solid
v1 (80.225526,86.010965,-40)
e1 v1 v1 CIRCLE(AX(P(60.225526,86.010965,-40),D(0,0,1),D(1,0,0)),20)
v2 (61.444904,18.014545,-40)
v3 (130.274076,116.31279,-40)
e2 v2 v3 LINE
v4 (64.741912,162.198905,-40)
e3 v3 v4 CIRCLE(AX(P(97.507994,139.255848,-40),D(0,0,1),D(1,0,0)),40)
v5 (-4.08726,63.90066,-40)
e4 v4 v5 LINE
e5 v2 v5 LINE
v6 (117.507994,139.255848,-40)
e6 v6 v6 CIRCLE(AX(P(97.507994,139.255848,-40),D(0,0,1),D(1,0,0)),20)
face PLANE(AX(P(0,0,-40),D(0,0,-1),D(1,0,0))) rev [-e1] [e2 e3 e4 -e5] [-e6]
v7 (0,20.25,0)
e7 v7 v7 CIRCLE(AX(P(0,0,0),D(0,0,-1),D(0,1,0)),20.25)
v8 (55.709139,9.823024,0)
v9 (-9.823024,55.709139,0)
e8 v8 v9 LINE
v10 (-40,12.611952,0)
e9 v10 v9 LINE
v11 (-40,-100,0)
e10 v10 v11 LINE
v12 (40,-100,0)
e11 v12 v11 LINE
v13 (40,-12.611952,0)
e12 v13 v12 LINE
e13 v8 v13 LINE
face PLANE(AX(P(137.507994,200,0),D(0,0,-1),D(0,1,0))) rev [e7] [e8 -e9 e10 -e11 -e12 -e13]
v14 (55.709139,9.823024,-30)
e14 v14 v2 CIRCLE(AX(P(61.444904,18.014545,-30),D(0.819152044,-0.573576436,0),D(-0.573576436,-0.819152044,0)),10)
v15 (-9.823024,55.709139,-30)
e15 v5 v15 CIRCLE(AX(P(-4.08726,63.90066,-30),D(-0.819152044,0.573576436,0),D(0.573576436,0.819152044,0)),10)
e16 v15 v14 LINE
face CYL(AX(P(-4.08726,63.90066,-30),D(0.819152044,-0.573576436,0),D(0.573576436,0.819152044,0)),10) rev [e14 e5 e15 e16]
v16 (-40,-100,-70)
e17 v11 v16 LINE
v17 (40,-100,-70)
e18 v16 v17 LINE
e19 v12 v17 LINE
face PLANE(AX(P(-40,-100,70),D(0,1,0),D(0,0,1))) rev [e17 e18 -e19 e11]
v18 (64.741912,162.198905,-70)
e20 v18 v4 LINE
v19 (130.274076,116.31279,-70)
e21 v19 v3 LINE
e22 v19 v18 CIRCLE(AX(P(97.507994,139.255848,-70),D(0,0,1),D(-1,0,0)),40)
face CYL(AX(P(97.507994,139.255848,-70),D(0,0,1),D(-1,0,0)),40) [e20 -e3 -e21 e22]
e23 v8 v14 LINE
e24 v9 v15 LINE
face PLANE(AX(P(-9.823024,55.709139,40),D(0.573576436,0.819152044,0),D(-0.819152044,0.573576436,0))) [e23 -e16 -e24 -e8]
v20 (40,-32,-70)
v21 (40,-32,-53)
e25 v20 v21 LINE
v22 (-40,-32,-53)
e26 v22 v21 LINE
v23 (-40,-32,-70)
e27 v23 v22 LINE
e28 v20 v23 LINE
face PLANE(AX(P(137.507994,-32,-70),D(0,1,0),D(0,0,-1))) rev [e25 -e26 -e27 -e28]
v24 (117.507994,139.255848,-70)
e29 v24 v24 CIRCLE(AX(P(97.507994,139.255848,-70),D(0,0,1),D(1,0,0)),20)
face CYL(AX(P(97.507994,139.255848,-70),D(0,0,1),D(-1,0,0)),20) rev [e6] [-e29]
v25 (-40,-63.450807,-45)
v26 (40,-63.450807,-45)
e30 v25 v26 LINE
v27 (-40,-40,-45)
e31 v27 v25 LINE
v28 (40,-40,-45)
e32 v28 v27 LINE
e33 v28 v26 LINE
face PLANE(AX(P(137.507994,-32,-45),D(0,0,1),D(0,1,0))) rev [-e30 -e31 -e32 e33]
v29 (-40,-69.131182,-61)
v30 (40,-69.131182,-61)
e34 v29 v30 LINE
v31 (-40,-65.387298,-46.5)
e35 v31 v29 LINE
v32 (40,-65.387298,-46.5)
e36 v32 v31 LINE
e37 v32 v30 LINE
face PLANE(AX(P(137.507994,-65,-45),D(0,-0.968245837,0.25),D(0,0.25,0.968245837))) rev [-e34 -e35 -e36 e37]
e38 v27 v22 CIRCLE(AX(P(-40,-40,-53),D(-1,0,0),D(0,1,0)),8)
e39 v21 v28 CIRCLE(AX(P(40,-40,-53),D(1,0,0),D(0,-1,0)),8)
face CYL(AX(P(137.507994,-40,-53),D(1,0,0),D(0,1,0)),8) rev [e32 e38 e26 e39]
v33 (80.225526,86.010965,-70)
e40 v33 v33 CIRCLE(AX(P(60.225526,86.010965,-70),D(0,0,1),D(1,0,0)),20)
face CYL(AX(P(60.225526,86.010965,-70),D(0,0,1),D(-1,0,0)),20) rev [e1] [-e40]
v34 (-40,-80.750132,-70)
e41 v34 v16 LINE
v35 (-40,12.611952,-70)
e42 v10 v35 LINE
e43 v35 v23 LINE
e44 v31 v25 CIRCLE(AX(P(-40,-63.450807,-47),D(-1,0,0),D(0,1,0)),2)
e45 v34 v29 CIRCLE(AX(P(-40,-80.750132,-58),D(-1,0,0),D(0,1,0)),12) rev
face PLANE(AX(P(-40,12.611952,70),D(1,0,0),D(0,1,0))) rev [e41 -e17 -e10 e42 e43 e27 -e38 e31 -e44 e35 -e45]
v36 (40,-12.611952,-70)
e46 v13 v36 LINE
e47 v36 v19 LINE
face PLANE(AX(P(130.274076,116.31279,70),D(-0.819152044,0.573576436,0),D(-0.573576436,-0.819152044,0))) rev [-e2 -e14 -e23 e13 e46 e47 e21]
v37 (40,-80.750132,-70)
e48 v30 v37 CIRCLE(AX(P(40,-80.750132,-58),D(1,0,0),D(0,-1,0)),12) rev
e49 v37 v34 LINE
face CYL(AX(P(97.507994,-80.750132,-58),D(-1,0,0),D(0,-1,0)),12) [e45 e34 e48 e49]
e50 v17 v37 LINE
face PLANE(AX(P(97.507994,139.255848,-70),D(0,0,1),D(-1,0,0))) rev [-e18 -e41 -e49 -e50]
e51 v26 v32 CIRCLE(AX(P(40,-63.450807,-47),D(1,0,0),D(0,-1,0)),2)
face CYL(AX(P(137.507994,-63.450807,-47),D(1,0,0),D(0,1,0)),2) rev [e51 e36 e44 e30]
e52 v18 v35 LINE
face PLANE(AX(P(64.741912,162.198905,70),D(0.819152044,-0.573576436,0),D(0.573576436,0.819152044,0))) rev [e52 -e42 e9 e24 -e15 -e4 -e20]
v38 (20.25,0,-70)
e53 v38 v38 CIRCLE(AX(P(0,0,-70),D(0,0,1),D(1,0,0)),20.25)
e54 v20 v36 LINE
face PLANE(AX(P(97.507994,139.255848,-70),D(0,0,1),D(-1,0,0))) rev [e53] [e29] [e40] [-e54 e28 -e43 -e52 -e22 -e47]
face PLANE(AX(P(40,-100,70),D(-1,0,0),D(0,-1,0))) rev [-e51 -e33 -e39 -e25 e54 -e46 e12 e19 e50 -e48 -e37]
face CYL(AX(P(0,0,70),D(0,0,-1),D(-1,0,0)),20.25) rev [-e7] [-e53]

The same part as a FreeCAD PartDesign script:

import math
import FreeCAD as App
import Part
import Sketcher
Q = App.Units.Quantity


def edges_at(feature, points):
    """Names of the edges that pass closest to the given points."""
    edges = feature.Shape.Edges
    near = lambda p: min(range(len(edges)), key=lambda i: edges[i].distToShape(Part.Vertex(*p))[0])
    return sorted({f"Edge{near(p) + 1}" for p in points})

doc = App.newDocument("Part")
body = doc.addObject("PartDesign::Body", "Body")

sketch1 = body.newObject("Sketcher::SketchObject", "Sketch")
sketch1.AttachmentSupport = (doc.getObject("XY_Plane"), [""])
sketch1.MapMode = "FlatFace"
sketch1.addGeometry([
    Part.LineSegment(App.Vector(65, 162, 0), App.Vector(-40, 13, 0)),
    Part.LineSegment(App.Vector(-40, 13, 0), App.Vector(-40, -100, 0)),
    Part.LineSegment(App.Vector(-40, -100, 0), App.Vector(40, -100, 0)),
    Part.LineSegment(App.Vector(40, -100, 0), App.Vector(40, -13, 0)),
    Part.LineSegment(App.Vector(40, -13, 0), App.Vector(130, 116, 0)),
    Part.ArcOfCircle(Part.Circle(App.Vector(98, 139, 0), App.Vector(0, 0, 1), 40), math.radians(-35), math.radians(145)),
    Part.Circle(App.Vector(0, 0, 0), App.Vector(0, 0, 1), 20),
    Part.Circle(App.Vector(60, 86, 0), App.Vector(0, 0, 1), 20),
    Part.Circle(App.Vector(98, 139, 0), App.Vector(0, 0, 1), 20),
], False)
sketch1.addConstraint([
    Sketcher.Constraint("Coincident", 0, 2, 1, 1),
    Sketcher.Constraint("Coincident", 1, 2, 2, 1),
    Sketcher.Constraint("Coincident", 2, 2, 3, 1),
    Sketcher.Constraint("Coincident", 3, 2, 4, 1),
    Sketcher.Constraint("Tangent", 4, 2, 5, 1),
    Sketcher.Constraint("Tangent", 5, 2, 0, 1),
    Sketcher.Constraint("Vertical", 1),
    Sketcher.Constraint("Horizontal", 2),
    Sketcher.Constraint("Vertical", 3),
    Sketcher.Constraint("Coincident", 6, 3, -1, 1),
    Sketcher.Constraint("Coincident", 8, 3, 5, 3),
    Sketcher.Constraint("Equal", 7, 8),
    Sketcher.Constraint("Symmetric", 0, 2, 3, 2, -1, 1),
    Sketcher.Constraint("Parallel", 0, 4),
    Sketcher.Constraint("Diameter", 7, 40.0),
    Sketcher.Constraint("Radius", 5, 40.0),
    Sketcher.Constraint("Diameter", 6, 40.5),
    Sketcher.Constraint("DistanceX", 2, 1, 2, 2, 80.0),
    Sketcher.Constraint("Angle", 0, Q("-125 deg")),
    Sketcher.Constraint("DistanceY", 1, 2, -1, 1, 100.0),
    Sketcher.Constraint("Distance", 0, 182.611952),
    Sketcher.Constraint("DistanceX", 7, 3, 5, 3, 37.282468),
    Sketcher.Constraint("DistanceY", 7, 3, 5, 2, 76.18794),
])
pad1 = body.newObject("PartDesign::Pad", "Pad")
pad1.Profile = sketch1
pad1.Length = 70

sketch2 = body.newObject("Sketcher::SketchObject", "Sketch001")
sketch2.AttachmentSupport = (doc.getObject("XY_Plane"), [""])
sketch2.MapMode = "FlatFace"
sketch2.addGeometry([
    Part.LineSegment(App.Vector(-10, 56, 0), App.Vector(56, 10, 0)),
    Part.LineSegment(App.Vector(56, 10, 0), App.Vector(170, 174, 0)),
    Part.LineSegment(App.Vector(170, 174, 0), App.Vector(105, 220, 0)),
    Part.LineSegment(App.Vector(105, 220, 0), App.Vector(-10, 56, 0)),
], False)
sketch2.addConstraint([
    Sketcher.Constraint("Coincident", 0, 2, 1, 1),
    Sketcher.Constraint("Coincident", 1, 2, 2, 1),
    Sketcher.Constraint("Coincident", 2, 2, 3, 1),
    Sketcher.Constraint("Coincident", 3, 2, 0, 1),
    Sketcher.Constraint("Perpendicular", 0, 1),
    Sketcher.Constraint("Perpendicular", 1, 2),
    Sketcher.Constraint("Perpendicular", 2, 3),
    Sketcher.Constraint("Angle", 0, Q("-35 deg")),
    Sketcher.Constraint("Distance", 0, 80.0),
    Sketcher.Constraint("Distance", 1, 200.0),
    Sketcher.Constraint("DistanceX", -1, 1, 0, 2, 55.709139),
    Sketcher.Constraint("DistanceY", -1, 1, 2, 2, 219.539548),
])
pocket1 = body.newObject("PartDesign::Pocket", "Pocket")
pocket1.Profile = sketch2
pocket1.Length = 40
pocket1.Reversed = True

sketch3 = body.newObject("Sketcher::SketchObject", "Sketch002")
sketch3.AttachmentSupport = (doc.getObject("YZ_Plane"), [""])
sketch3.MapMode = "FlatFace"
sketch3.AttachmentOffset = App.Placement(App.Vector(0, 0, -40), App.Rotation())
sketch3.addGeometry([
    Part.LineSegment(App.Vector(-32, 70, 0), App.Vector(-32, 45, 0)),
    Part.LineSegment(App.Vector(-32, 45, 0), App.Vector(-65, 45, 0)),
    Part.LineSegment(App.Vector(-65, 45, 0), App.Vector(-71, 70, 0)),
    Part.LineSegment(App.Vector(-71, 70, 0), App.Vector(-32, 70, 0)),
], False)
sketch3.addConstraint([
    Sketcher.Constraint("Coincident", 0, 2, 1, 1),
    Sketcher.Constraint("Coincident", 1, 2, 2, 1),
    Sketcher.Constraint("Coincident", 2, 2, 3, 1),
    Sketcher.Constraint("Coincident", 3, 2, 0, 1),
    Sketcher.Constraint("Vertical", 0),
    Sketcher.Constraint("Horizontal", 1),
    Sketcher.Constraint("Horizontal", 3),
    Sketcher.Constraint("DistanceX", 1, 2, 1, 1, 33.0),
    Sketcher.Constraint("DistanceY", 0, 2, 0, 1, 25.0),
    Sketcher.Constraint("DistanceX", 0, 2, -1, 1, 32.0),
    Sketcher.Constraint("DistanceY", -1, 1, 0, 2, 45.0),
    Sketcher.Constraint("Distance", 2, 25.819889),
])
pocket2 = body.newObject("PartDesign::Pocket", "Pocket001")
pocket2.Profile = sketch3
pocket2.Type = "ThroughAll"
pocket2.Reversed = True
doc.recompute()

fillet = body.newObject("PartDesign::Fillet", "Fillet")
fillet.Base = (pocket2, edges_at(pocket2, [(0, -71.455, 70)]))
fillet.Radius = 12
doc.recompute()

fillet2 = body.newObject("PartDesign::Fillet", "Fillet001")
fillet2.Base = (fillet, edges_at(fillet, [(0, -65, 45)]))
fillet2.Radius = 2
doc.recompute()

fillet3 = body.newObject("PartDesign::Fillet", "Fillet002")
fillet3.Base = (fillet2, edges_at(fillet2, [(0, -32, 45)]))
fillet3.Radius = 8
doc.recompute()

fillet4 = body.newObject("PartDesign::Fillet", "Fillet003")
fillet4.Base = (fillet3, edges_at(fillet3, [(22.943, 32.766, 40)]))
fillet4.Radius = 10
body2 = doc.addObject("PartDesign::Body", "Body001")
doc.recompute()

body2.BaseFeature = body
doc.recompute()

mirroring = doc.addObject("Part::Mirroring", "Mirroring")
mirroring.Source = body
mirroring.Base = App.Vector(97.507994, 139.255848, 0)
mirroring.Normal = App.Vector(0, 0, -1)
body3 = doc.addObject("PartDesign::Body", "Body002")
body3.BaseFeature = mirroring
boolean = body2.newObject("PartDesign::Boolean", "Boolean")
boolean.Type = "Fuse"
boolean.addObjects([body3])
doc.recompute()

sketch4 = body2.newObject("Sketcher::SketchObject", "Sketch003")
sketch4.AttachmentSupport = (doc.getObject("YZ_Plane001"), [""])
sketch4.MapMode = "FlatFace"
sketch4.AttachmentOffset = App.Placement(App.Vector(0, 0, -40), App.Rotation())
sketch4.addGeometry([
    Part.LineSegment(App.Vector(200, 0, 0), App.Vector(-100, 0, 0)),
    Part.LineSegment(App.Vector(-100, 0, 0), App.Vector(-100, 70, 0)),
    Part.LineSegment(App.Vector(-100, 70, 0), App.Vector(200, 70, 0)),
    Part.LineSegment(App.Vector(200, 70, 0), App.Vector(200, 0, 0)),
], False)
sketch4.addConstraint([
    Sketcher.Constraint("Coincident", 0, 2, 1, 1),
    Sketcher.Constraint("Coincident", 1, 2, 2, 1),
    Sketcher.Constraint("Coincident", 2, 2, 3, 1),
    Sketcher.Constraint("Coincident", 3, 2, 0, 1),
    Sketcher.Constraint("Horizontal", 0),
    Sketcher.Constraint("Vertical", 1),
    Sketcher.Constraint("Horizontal", 2),
    Sketcher.Constraint("Vertical", 3),
    Sketcher.Constraint("PointOnObject", 0, 2, -1),
    Sketcher.Constraint("DistanceX", 0, 2, 0, 1, 300.0),
    Sketcher.Constraint("DistanceY", 1, 1, 1, 2, 70.0),
    Sketcher.Constraint("DistanceX", 0, 2, -1, 1, 100.0),
])
pocket3 = body2.newObject("PartDesign::Pocket", "Pocket002")
pocket3.Profile = sketch4
pocket3.Type = "ThroughAll"
pocket3.Reversed = True
mirroring.Visibility = False

doc.recompute()
